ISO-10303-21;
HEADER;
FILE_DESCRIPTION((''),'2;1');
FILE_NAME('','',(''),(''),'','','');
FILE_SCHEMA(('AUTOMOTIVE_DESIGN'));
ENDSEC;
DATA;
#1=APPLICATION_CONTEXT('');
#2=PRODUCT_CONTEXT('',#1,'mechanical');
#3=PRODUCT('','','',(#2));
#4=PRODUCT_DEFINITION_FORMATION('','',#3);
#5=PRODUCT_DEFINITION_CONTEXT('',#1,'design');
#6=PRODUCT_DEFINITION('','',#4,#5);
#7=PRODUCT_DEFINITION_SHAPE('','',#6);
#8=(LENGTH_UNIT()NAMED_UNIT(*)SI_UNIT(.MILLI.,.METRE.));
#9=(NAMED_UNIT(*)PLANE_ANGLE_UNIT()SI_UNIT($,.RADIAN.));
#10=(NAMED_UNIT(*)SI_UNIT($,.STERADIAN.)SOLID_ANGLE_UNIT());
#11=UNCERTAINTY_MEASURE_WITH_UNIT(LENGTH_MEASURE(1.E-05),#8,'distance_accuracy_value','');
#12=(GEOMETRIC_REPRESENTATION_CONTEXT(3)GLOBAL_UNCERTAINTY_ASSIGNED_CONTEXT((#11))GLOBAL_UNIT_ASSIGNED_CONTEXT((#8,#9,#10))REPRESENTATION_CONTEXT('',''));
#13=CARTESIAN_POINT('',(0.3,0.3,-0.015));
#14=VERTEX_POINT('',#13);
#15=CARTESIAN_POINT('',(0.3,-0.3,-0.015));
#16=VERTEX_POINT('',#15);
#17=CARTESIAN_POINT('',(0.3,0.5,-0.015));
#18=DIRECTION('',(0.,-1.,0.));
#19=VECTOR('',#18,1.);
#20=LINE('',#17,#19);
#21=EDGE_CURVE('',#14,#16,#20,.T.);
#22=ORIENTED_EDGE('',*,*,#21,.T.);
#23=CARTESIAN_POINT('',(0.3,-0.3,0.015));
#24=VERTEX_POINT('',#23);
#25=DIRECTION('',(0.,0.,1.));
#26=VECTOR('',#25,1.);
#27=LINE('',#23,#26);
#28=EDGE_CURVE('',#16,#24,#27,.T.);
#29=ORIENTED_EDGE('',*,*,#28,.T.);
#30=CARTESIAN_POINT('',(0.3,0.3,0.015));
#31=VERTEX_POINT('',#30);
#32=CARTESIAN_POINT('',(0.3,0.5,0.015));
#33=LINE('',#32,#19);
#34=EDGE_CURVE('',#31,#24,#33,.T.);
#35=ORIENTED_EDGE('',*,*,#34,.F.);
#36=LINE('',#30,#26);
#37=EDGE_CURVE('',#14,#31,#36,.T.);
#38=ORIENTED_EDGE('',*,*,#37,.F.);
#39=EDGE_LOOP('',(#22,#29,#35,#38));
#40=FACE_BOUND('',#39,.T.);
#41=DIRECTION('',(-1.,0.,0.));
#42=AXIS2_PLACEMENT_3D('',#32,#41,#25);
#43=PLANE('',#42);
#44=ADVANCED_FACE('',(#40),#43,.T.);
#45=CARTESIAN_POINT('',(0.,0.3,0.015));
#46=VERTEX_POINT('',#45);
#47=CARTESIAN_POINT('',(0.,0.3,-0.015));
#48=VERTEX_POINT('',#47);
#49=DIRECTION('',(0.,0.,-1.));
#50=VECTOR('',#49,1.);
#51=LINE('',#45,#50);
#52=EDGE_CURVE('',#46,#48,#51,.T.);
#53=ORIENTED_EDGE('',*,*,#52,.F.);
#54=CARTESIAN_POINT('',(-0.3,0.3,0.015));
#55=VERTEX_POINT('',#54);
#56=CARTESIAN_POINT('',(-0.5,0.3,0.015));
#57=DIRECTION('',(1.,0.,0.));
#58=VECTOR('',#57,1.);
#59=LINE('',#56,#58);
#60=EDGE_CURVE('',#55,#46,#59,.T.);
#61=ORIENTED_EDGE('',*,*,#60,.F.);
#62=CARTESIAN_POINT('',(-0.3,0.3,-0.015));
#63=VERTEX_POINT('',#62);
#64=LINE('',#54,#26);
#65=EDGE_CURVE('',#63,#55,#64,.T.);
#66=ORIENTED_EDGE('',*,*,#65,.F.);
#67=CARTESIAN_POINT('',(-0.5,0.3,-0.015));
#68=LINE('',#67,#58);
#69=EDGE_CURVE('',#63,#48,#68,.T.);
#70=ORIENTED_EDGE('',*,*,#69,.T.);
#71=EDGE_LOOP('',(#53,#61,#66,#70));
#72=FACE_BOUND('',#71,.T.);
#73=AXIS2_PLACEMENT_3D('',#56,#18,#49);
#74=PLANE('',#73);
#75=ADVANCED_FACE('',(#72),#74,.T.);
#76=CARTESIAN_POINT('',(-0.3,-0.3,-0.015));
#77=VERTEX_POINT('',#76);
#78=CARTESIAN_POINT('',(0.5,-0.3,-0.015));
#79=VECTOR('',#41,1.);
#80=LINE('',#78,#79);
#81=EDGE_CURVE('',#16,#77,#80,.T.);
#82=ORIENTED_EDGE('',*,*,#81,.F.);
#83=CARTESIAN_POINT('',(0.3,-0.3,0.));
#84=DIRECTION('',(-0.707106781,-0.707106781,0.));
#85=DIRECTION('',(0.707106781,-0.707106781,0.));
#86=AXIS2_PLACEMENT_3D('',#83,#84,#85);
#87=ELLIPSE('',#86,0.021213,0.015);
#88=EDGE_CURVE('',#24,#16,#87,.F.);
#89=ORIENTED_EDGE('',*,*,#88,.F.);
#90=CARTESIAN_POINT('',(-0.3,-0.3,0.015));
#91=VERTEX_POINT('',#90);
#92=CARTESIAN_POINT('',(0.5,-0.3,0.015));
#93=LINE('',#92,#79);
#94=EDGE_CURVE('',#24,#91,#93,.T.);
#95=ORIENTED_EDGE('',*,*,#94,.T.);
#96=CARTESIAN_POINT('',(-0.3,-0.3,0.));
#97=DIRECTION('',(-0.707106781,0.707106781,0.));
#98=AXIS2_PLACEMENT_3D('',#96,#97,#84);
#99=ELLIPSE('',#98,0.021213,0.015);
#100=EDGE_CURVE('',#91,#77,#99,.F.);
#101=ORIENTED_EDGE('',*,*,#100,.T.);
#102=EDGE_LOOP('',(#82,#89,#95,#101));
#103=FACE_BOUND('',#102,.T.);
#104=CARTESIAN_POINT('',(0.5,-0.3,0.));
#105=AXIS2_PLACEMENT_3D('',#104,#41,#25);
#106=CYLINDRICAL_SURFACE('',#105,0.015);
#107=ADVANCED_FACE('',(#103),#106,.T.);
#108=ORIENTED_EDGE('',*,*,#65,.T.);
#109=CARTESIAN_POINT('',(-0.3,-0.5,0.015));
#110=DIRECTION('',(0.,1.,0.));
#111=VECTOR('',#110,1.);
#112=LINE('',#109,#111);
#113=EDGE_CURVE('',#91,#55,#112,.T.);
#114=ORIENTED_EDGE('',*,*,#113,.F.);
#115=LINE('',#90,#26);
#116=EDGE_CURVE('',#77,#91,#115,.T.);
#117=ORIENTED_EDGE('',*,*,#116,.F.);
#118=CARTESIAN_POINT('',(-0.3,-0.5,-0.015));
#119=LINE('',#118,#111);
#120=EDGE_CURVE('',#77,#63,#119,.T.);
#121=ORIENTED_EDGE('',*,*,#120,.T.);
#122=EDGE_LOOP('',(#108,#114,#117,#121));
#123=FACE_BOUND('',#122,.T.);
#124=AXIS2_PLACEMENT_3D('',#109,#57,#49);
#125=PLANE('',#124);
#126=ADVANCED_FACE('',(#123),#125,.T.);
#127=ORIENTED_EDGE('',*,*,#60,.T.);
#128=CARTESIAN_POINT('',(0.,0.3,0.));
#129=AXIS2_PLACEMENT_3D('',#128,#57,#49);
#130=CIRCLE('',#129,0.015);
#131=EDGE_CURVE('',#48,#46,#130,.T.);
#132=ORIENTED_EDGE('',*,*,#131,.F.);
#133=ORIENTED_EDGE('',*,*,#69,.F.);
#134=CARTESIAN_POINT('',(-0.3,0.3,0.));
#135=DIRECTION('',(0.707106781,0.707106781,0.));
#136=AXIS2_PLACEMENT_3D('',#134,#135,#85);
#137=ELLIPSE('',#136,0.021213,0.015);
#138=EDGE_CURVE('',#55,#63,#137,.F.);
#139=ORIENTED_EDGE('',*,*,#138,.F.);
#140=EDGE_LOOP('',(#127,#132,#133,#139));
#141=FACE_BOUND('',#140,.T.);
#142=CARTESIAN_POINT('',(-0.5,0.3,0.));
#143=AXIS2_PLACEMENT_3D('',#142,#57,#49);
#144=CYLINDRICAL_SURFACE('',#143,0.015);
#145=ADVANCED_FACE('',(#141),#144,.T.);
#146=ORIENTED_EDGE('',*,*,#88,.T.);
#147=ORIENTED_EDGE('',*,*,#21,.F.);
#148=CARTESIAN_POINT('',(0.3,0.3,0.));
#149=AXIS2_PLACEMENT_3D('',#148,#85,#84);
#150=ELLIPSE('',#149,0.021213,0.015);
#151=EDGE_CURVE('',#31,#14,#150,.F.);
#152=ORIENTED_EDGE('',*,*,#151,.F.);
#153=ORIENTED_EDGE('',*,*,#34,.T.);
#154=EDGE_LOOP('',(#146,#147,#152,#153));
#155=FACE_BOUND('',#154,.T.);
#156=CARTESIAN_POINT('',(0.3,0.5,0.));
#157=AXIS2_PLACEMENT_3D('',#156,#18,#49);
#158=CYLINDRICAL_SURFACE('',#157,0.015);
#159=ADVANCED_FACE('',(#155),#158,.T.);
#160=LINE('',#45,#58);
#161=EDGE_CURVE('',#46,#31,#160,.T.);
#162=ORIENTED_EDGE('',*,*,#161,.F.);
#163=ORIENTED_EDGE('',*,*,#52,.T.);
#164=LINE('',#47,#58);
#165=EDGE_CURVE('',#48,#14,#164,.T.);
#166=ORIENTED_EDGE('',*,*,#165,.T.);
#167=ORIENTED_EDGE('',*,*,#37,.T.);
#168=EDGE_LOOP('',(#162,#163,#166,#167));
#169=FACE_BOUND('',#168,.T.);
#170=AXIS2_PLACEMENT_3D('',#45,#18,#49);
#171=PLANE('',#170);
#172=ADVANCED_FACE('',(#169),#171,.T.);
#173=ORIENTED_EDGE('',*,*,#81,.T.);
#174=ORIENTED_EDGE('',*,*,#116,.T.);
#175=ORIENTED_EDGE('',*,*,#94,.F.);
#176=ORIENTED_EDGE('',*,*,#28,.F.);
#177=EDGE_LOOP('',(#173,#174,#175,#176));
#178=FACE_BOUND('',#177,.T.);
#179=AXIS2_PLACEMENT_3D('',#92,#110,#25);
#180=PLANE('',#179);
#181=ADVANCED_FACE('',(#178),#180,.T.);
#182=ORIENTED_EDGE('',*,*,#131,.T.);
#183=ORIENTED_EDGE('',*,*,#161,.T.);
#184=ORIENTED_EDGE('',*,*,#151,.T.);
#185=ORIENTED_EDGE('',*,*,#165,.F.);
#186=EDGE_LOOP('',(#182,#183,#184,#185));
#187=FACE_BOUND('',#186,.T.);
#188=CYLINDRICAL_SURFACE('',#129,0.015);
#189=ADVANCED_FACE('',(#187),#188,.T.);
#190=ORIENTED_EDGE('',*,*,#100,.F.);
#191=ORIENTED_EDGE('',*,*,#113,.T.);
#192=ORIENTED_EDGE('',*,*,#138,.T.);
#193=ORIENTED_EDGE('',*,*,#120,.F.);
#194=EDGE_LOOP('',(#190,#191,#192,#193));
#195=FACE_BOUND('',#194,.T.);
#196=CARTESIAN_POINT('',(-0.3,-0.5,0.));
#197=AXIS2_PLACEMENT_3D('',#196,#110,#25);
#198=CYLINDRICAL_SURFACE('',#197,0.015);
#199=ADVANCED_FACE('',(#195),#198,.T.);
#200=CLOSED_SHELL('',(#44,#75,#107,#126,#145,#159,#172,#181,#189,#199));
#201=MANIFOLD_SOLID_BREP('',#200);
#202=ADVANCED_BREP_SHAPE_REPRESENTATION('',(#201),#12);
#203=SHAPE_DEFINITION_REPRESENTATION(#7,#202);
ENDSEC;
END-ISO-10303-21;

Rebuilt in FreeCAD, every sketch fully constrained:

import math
import FreeCAD as App
import Part
import Sketcher

V = App.Vector
Q = App.Units.Quantity

doc = App.newDocument("Part")
body = doc.addObject("PartDesign::Body", "Body")

# Sketch on YZ plane
sketch1 = body.newObject("Sketcher::SketchObject", "Sketch")
sketch1.AttachmentSupport = (doc.getObject("YZ_Plane"), [""])
sketch1.MapMode = "FlatFace"
sketch1.addGeometry(Part.LineSegment(V(0.3, 0.015, 0), V(0.3, -0.015, 0)), False)
sketch1.addGeometry(Part.ArcOfCircle(Part.Circle(V(0.3, 0, 0), V(0, 0, 1), 0.015), math.radians(-90), math.radians(90)), False)
sketch1.addConstraint(Sketcher.Constraint("Coincident", 0, 1, 1, 2))
sketch1.addConstraint(Sketcher.Constraint("Coincident", 1, 1, 0, 2))
sketch1.addConstraint(Sketcher.Constraint("Vertical", 0))
sketch1.addConstraint(Sketcher.Constraint("PointOnObject", 1, 3, -1))
sketch1.addConstraint(Sketcher.Constraint("Vertical", 1, 3, 0, 1))
sketch1.addConstraint(Sketcher.Constraint("Radius", 1, Q("0.015 mm")))
sketch1.addConstraint(Sketcher.Constraint("DistanceX", -1, 1, 1, 3, Q("0.3 mm")))

# Sketch on XY plane
sketch2 = body.newObject("Sketcher::SketchObject", "Sketch001")
sketch2.AttachmentSupport = (doc.getObject("XY_Plane"), [""])
sketch2.MapMode = "FlatFace"
sketch2.addGeometry(Part.LineSegment(V(-0.3, -0.3, 0), V(0.3, -0.3, 0)), False)
sketch2.addGeometry(Part.LineSegment(V(0.3, -0.3, 0), V(0.3, 0.3, 0)), False)
sketch2.addGeometry(Part.LineSegment(V(0.3, 0.3, 0), V(-0.3, 0.3, 0)), False)
sketch2.addGeometry(Part.LineSegment(V(-0.3, 0.3, 0), V(-0.3, -0.3, 0)), False)
sketch2.addConstraint(Sketcher.Constraint("Coincident", 0, 2, 1, 1))
sketch2.addConstraint(Sketcher.Constraint("Coincident", 1, 2, 2, 1))
sketch2.addConstraint(Sketcher.Constraint("Coincident", 2, 2, 3, 1))
sketch2.addConstraint(Sketcher.Constraint("Coincident", 3, 2, 0, 1))
sketch2.addConstraint(Sketcher.Constraint("Horizontal", 0))
sketch2.addConstraint(Sketcher.Constraint("Vertical", 1))
sketch2.addConstraint(Sketcher.Constraint("Horizontal", 2))
sketch2.addConstraint(Sketcher.Constraint("Vertical", 3))
sketch2.addConstraint(Sketcher.Constraint("Symmetric", 0, 2, 2, 2, -1, 1))
sketch2.addConstraint(Sketcher.Constraint("Equal", 2, 1))
sketch2.addConstraint(Sketcher.Constraint("DistanceX", 0, 1, 0, 2, Q("0.6 mm")))
doc.recompute()

additivepipe = body.newObject("PartDesign::AdditivePipe", "AdditivePipe")
additivepipe.Profile = sketch1
additivepipe.Spine = (sketch2, ["Edge1", "Edge2", "Edge3", "Edge4"])
additivepipe.Transition = "Right corner"

doc.recompute()
